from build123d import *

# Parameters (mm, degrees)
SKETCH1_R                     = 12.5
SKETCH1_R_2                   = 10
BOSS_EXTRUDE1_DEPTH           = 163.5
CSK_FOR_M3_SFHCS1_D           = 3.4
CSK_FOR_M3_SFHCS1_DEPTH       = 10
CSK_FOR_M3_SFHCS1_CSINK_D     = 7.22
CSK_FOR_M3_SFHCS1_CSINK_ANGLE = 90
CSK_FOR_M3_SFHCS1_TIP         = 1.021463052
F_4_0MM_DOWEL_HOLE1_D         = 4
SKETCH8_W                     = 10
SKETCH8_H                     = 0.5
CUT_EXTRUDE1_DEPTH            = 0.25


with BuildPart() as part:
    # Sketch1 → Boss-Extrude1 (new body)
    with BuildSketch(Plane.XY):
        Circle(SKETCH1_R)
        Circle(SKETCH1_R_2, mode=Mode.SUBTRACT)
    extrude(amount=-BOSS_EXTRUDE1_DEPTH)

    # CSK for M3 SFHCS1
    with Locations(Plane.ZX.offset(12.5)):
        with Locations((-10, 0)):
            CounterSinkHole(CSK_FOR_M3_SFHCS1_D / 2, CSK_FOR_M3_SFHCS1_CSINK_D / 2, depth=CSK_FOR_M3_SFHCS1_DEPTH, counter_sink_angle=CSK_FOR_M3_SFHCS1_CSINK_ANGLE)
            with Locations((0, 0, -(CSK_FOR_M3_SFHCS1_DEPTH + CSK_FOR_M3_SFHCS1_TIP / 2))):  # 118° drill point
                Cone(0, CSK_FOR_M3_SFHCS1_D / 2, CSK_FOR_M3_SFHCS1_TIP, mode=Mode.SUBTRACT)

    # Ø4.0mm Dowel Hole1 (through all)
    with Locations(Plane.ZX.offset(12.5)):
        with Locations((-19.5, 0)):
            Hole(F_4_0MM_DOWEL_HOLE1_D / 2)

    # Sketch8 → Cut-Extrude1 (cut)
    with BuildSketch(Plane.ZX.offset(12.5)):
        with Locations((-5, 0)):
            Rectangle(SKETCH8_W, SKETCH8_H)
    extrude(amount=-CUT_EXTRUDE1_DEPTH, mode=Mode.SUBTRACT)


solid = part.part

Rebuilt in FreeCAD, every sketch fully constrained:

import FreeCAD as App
import Part
import Sketcher
from FreeCAD import Vector


def add_polygon(sketch, points):
    """Adds a closed chain of lines whose ends are joined by coincident constraints."""
    first, n = sketch.GeometryCount, len(points)
    for a, b in zip(points, points[1:] + points[:1]):
        sketch.addGeometry(Part.LineSegment(App.Vector(*a, 0), App.Vector(*b, 0)), False)
    for i in range(n):
        sketch.addConstraint(Sketcher.Constraint("Coincident", first + i, 2, first + (i + 1) % n, 1))

doc = App.newDocument("Part")
params = doc.addObject("Spreadsheet::Sheet", "Params")
for row, (alias, value) in enumerate([
    ("sketch1_diameter", "25 mm"),
    ("sketch1_diameter2", "20 mm"),
    ("pad1_length", "163.5 mm"),
    ("sketch2_diameter", "3.4 mm"),
    ("hole_diameter", "3.4 mm"),
    ("hole_depth", "10 mm"),
    ("hole_csink_diameter", "7.22 mm"),
    ("sketch3_diameter", "4 mm"),
    ("hole2_diameter", "4 mm"),
    ("sketch4_height", "10 mm"),
    ("sketch4_width", "0.5 mm"),
    ("pocket1_length", "0.25 mm"),
], start=1):
    params.set(f"A{row}", alias)
    params.set(f"B{row}", "=" + value)
    params.setAlias(f"B{row}", alias)

body = doc.addObject("PartDesign::Body", "Body")

sketch1 = doc.addObject("Sketcher::SketchObject", "Sketch")
body.addObject(sketch1)
sketch1.AttachmentSupport = (doc.XY_Plane, [""])
sketch1.MapMode = "FlatFace"
sketch1.addGeometry([
    Part.Circle(Vector(0, 0, 0), Vector(0, 0, 1), 12),
    Part.Circle(Vector(0, 0, 0), Vector(0, 0, 1), 10),
], False)
sketch1.addConstraint([
    Sketcher.Constraint("Coincident", 0, 3, -1, 1),
    Sketcher.Constraint("Coincident", 1, 3, -1, 1),
    Sketcher.Constraint("Diameter", 0, 25.0),
    Sketcher.Constraint("Diameter", 1, 20.0),
])
sketch1.setExpression("Constraints[2]", "Params.sketch1_diameter")
sketch1.setExpression("Constraints[3]", "Params.sketch1_diameter2")
pad1 = doc.addObject("PartDesign::Pad", "Pad")
body.addObject(pad1)
pad1.Profile = sketch1
pad1.setExpression("Length", "Params.pad1_length")
pad1.Reversed = True

sketch2 = doc.addObject("Sketcher::SketchObject", "Sketch001")
body.addObject(sketch2)
sketch2.AttachmentSupport = (doc.XZ_Plane, [""])
sketch2.MapMode = "FlatFace"
sketch2.AttachmentOffset = App.Placement(Vector(0, 0, -12.5), App.Rotation())
sketch2.addGeometry(Part.Circle(Vector(0, -10, 0), Vector(0, 0, 1), 1.7), False)
sketch2.addConstraint([
    Sketcher.Constraint("PointOnObject", 0, 3, -2),
    Sketcher.Constraint("Diameter", 0, 3.4),
    Sketcher.Constraint("DistanceY", 0, 3, -1, 1, 10.0),
])
sketch2.setExpression("Constraints[1]", "Params.sketch2_diameter")
doc.recompute()
hole = doc.addObject("PartDesign::Hole", "Hole")
body.addObject(hole)
hole.Profile = sketch2
hole.ThreadType = "None"
hole.setExpression("Diameter", "Params.hole_diameter")
hole.DepthType = "Dimension"
hole.setExpression("Depth", "Params.hole_depth")
hole.DrillPoint = "Angled"
hole.DrillPointAngle = 118
hole.HoleCutType = "Countersink"
hole.setExpression("HoleCutDiameter", "Params.hole_csink_diameter")
hole.HoleCutCountersinkAngle = 90
hole.Reversed = True

sketch3 = doc.addObject("Sketcher::SketchObject", "Sketch002")
body.addObject(sketch3)
sketch3.AttachmentSupport = (doc.XZ_Plane, [""])
sketch3.MapMode = "FlatFace"
sketch3.AttachmentOffset = App.Placement(Vector(0, 0, -12.5), App.Rotation())
sketch3.addGeometry(Part.Circle(Vector(0, -19.5, 0), Vector(0, 0, 1), 2), False)
sketch3.addConstraint([
    Sketcher.Constraint("PointOnObject", 0, 3, -2),
    Sketcher.Constraint("Diameter", 0, 4.0),
    Sketcher.Constraint("DistanceY", 0, 3, -1, 1, 19.5),
])
sketch3.setExpression("Constraints[1]", "Params.sketch3_diameter")
doc.recompute()
hole2 = doc.addObject("PartDesign::Hole", "Hole001")
body.addObject(hole2)
hole2.Profile = sketch3
hole2.ThreadType = "None"
hole2.setExpression("Diameter", "Params.hole2_diameter")
hole2.DepthType = "ThroughAll"
hole2.Reversed = True

sketch4 = doc.addObject("Sketcher::SketchObject", "Sketch003")
body.addObject(sketch4)
sketch4.AttachmentSupport = (doc.XZ_Plane, [""])
sketch4.MapMode = "FlatFace"
sketch4.AttachmentOffset = App.Placement(Vector(0, 0, -12.5), App.Rotation())
add_polygon(sketch4, [(0.2, -10), (-0.2, -10), (-0.2, 0), (0.2, 0)])
sketch4.addConstraint([
    Sketcher.Constraint("Horizontal", 0),
    Sketcher.Constraint("Vertical", 1),
    Sketcher.Constraint("Horizontal", 2),
    Sketcher.Constraint("Vertical", 3),
    Sketcher.Constraint("Symmetric", 1, 2, 2, 2, -1, 1),
    Sketcher.Constraint("DistanceY", 1, 1, 1, 2, 10.0),
    Sketcher.Constraint("DistanceX", 0, 2, 0, 1, 0.5),
])
sketch4.setExpression("Constraints[9]", "Params.sketch4_height")
sketch4.setExpression("Constraints[10]", "Params.sketch4_width")
pocket1 = doc.addObject("PartDesign::Pocket", "Pocket")
body.addObject(pocket1)
pocket1.Profile = sketch4
pocket1.setExpression("Length", "Params.pocket1_length")
pocket1.Reversed = True

doc.recompute()
